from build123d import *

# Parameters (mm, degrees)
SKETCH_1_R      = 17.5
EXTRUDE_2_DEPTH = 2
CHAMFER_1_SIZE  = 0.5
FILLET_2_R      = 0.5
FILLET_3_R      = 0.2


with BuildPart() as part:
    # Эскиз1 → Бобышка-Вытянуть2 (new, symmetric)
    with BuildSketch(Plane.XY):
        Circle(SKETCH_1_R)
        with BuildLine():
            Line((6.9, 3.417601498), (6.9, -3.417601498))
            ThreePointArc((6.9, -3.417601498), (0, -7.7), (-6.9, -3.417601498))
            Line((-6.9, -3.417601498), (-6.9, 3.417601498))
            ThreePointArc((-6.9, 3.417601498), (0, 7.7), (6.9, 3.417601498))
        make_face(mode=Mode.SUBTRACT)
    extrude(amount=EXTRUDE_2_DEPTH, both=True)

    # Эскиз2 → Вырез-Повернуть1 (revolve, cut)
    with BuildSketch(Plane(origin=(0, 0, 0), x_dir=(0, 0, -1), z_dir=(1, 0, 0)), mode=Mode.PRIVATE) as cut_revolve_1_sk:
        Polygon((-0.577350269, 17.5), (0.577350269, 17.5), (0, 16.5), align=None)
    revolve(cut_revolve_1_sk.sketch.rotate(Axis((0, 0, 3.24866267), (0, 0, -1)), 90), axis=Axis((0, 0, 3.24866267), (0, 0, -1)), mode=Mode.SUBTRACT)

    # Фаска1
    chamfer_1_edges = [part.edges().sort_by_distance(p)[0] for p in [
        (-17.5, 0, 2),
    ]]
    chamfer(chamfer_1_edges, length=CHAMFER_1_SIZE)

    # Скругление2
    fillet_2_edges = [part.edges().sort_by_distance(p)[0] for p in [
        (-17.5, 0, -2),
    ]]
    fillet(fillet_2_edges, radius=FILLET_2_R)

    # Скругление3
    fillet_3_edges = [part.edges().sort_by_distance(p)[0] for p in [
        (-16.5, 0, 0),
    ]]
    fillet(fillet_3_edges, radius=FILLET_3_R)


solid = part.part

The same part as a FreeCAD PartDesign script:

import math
import FreeCAD as App
import Part
import Sketcher
Q = App.Units.Quantity


def edges_at(feature, points):
    """Names of the edges that pass closest to the given points."""
    edges = feature.Shape.Edges
    near = lambda p: min(range(len(edges)), key=lambda i: edges[i].distToShape(Part.Vertex(*p))[0])
    return sorted({f"Edge{near(p) + 1}" for p in points})

doc = App.newDocument("Part")
params = doc.addObject("Spreadsheet::Sheet", "Params")
for row, (alias, value) in enumerate([
    ("sketch1_diameter", "35 mm"),
    ("sketch1_radius", "7.7 mm"),
    ("pad1_length", "4 mm"),
    ("groove_angle", "360 deg"),
    ("chamfer_size", "0.5 mm"),
    ("fillet_radius", "0.5 mm"),
    ("fillet2_radius", "0.2 mm"),
], start=1):
    params.set(f"A{row}", alias)
    params.set(f"B{row}", "=" + value)
    params.setAlias(f"B{row}", alias)

body = doc.addObject("PartDesign::Body", "Body")

# Sketch on XY plane
sketch1 = body.newObject("Sketcher::SketchObject", "Sketch")
sketch1.AttachmentSupport = (doc.getObject("XY_Plane"), [""])
sketch1.MapMode = "FlatFace"
sketch1.addGeometry([
    Part.Circle(App.Vector(0, 0, 0), App.Vector(0, 0, 1), 17.5),  # 0
    Part.ArcOfCircle(Part.Circle(App.Vector(0, 0, 0), App.Vector(0, 0, 1), 7.7), math.radians(26.349424), math.radians(153.650576)),  # 1
    Part.LineSegment(App.Vector(6.9, 3.417601, 0), App.Vector(6.9, -3.417601, 0)),  # 2
    Part.ArcOfCircle(Part.Circle(App.Vector(0, 0, 0), App.Vector(0, 0, 1), 7.7), math.radians(-153.650576), math.radians(-26.349424)),  # 3
    Part.LineSegment(App.Vector(-6.9, -3.417601, 0), App.Vector(-6.9, 3.417601, 0)),  # 4
], False)
sketch1.addConstraint([
    Sketcher.Constraint("Coincident", 1, 1, 2, 1),
    Sketcher.Constraint("Coincident", 2, 2, 3, 2),
    Sketcher.Constraint("Coincident", 3, 1, 4, 1),
    Sketcher.Constraint("Coincident", 4, 2, 1, 2),
    Sketcher.Constraint("Vertical", 2),
    Sketcher.Constraint("Vertical", 4),
    Sketcher.Constraint("Coincident", 0, 3, -1, 1),
    Sketcher.Constraint("Coincident", 1, 3, -1, 1),
    Sketcher.Constraint("Coincident", 3, 3, -1, 1),
    Sketcher.Constraint("Equal", 1, 3),
    Sketcher.Constraint("Horizontal", 2, 2, 3, 1),
    Sketcher.Constraint("Diameter", 0, 35.0),
    Sketcher.Constraint("Radius", 1, 7.7),
    Sketcher.Constraint("DistanceX", -1, 1, 1, 1, 6.9),
])
sketch1.setExpression("Constraints[11]", "Params.sketch1_diameter")
sketch1.setExpression("Constraints[12]", "Params.sketch1_radius")
pad1 = body.newObject("PartDesign::Pad", "Pad")
pad1.Profile = sketch1
pad1.setExpression("Length", "Params.pad1_length")
pad1.Midplane = True

# Sketch on YZ plane
sketch2 = body.newObject("Sketcher::SketchObject", "Sketch001")
sketch2.AttachmentSupport = (doc.getObject("YZ_Plane"), [""])
sketch2.MapMode = "FlatFace"
sketch2.addGeometry([
    Part.LineSegment(App.Vector(17.5, -0.57735, 0), App.Vector(17.5, 0.57735, 0)),
    Part.LineSegment(App.Vector(17.5, 0.57735, 0), App.Vector(16.5, 0, 0)),
    Part.LineSegment(App.Vector(16.5, 0, 0), App.Vector(17.5, -0.57735, 0)),
], False)
sketch2.addConstraint([
    Sketcher.Constraint("Coincident", 0, 2, 1, 1),
    Sketcher.Constraint("Coincident", 1, 2, 2, 1),
    Sketcher.Constraint("Coincident", 2, 2, 0, 1),
    Sketcher.Constraint("Vertical", 0),
    Sketcher.Constraint("PointOnObject", 1, 2, -1),
    Sketcher.Constraint("Equal", 1, 2),
    Sketcher.Constraint("Angle", 1, Q("-150 deg")),
    Sketcher.Constraint("DistanceX", 1, 2, 0, 2, 1.0),
    Sketcher.Constraint("DistanceX", -1, 1, 0, 2, 17.5),
])
groove = body.newObject("PartDesign::Groove", "Groove")
groove.Profile = sketch2
groove.ReferenceAxis = (sketch2, ["V_Axis"])
groove.setExpression("Angle", "Params.groove_angle")
doc.recompute()

chamfer = body.newObject("PartDesign::Chamfer", "Chamfer")
chamfer.Base = (groove, edges_at(groove, [(-17.5, 0, 2)]))
chamfer.setExpression("Size", "Params.chamfer_size")
doc.recompute()

fillet = body.newObject("PartDesign::Fillet", "Fillet")
fillet.Base = (chamfer, edges_at(chamfer, [(-17.5, 0, -2)]))
fillet.setExpression("Radius", "Params.fillet_radius")
doc.recompute()

fillet2 = body.newObject("PartDesign::Fillet", "Fillet001")
fillet2.Base = (fillet, edges_at(fillet, [(-16.5, 0, 0)]))
fillet2.setExpression("Radius", "Params.fillet2_radius")

doc.recompute()
